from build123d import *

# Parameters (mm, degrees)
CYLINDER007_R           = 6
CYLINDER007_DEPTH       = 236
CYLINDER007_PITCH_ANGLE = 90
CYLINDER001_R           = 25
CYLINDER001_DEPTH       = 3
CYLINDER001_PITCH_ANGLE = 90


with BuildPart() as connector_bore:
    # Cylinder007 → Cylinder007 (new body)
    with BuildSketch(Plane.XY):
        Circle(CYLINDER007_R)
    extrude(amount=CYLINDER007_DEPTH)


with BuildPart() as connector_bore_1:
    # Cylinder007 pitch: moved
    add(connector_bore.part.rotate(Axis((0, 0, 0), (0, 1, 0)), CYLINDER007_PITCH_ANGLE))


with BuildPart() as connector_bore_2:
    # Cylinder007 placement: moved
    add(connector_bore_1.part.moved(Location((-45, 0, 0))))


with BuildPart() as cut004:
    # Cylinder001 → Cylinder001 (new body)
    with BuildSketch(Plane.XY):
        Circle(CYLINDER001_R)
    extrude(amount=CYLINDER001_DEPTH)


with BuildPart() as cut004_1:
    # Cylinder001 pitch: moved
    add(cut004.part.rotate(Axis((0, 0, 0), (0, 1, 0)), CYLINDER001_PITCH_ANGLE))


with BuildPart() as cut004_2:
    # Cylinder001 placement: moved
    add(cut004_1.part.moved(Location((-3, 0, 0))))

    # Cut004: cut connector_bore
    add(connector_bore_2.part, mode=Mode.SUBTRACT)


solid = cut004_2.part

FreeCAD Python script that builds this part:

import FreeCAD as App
import Part
import Sketcher
Q = App.Units.Quantity

doc = App.newDocument("Part")
params = doc.addObject("Spreadsheet::Sheet", "Params")
for row, (alias, value) in enumerate([
    ("sketch1_diameter", "12 mm"),
    ("pad1_length", "236 mm"),
    ("sketch2_diameter", "50 mm"),
    ("pad2_length", "3 mm"),
], start=1):
    params.set(f"A{row}", alias)
    params.set(f"B{row}", "=" + value)
    params.setAlias(f"B{row}", alias)

body = doc.addObject("PartDesign::Body", "Body")

# Sketch on XY plane
sketch1 = doc.addObject("Sketcher::SketchObject", "Sketch")
body.addObject(sketch1)
sketch1.AttachmentSupport = (doc.XY_Plane, [""])
sketch1.MapMode = "FlatFace"
sketch1.addGeometry(Part.Circle(App.Vector(0, 0, 0), App.Vector(0, 0, 1), 6), False)
sketch1.addConstraint([
    Sketcher.Constraint("Coincident", 0, 3, -1, 1),
    Sketcher.Constraint("Diameter", 0, Q("12 mm")),
])
sketch1.setExpression("Constraints[1]", "Params.sketch1_diameter")
pad1 = doc.addObject("PartDesign::Pad", "Pad")
body.addObject(pad1)
pad1.Profile = sketch1
pad1.setExpression("Length", "Params.pad1_length")
body2 = doc.addObject("PartDesign::Body", "Body001")
doc.recompute()

body.Placement = App.Placement(App.Vector(0, 0, 0), App.Rotation(App.Vector(0, 1, 0), 90))
boolean = doc.addObject("PartDesign::Boolean", "Boolean")
body2.addObject(boolean)
boolean.Type = "Fuse"
boolean.addObjects([body])
body3 = doc.addObject("PartDesign::Body", "Body002")
doc.recompute()

body2.Placement = App.Placement(App.Vector(-45, 0, 0), App.Rotation(App.Vector(0, 0, 1), 0))
boolean2 = doc.addObject("PartDesign::Boolean", "Boolean001")
body3.addObject(boolean2)
boolean2.Type = "Fuse"
boolean2.addObjects([body2])
body4 = doc.addObject("PartDesign::Body", "Body003")

# Sketch on XY plane
sketch2 = doc.addObject("Sketcher::SketchObject", "Sketch001")
body4.addObject(sketch2)
sketch2.AttachmentSupport = (doc.getObject("XY_Plane003"), [""])
sketch2.MapMode = "FlatFace"
sketch2.addGeometry(Part.Circle(App.Vector(0, 0, 0), App.Vector(0, 0, 1), 25), False)
sketch2.addConstraint([
    Sketcher.Constraint("Coincident", 0, 3, -1, 1),
    Sketcher.Constraint("Diameter", 0, Q("50 mm")),
])
sketch2.setExpression("Constraints[1]", "Params.sketch2_diameter")
pad2 = doc.addObject("PartDesign::Pad", "Pad001")
body4.addObject(pad2)
pad2.Profile = sketch2
pad2.setExpression("Length", "Params.pad2_length")
body5 = doc.addObject("PartDesign::Body", "Body004")
doc.recompute()

body4.Placement = App.Placement(App.Vector(0, 0, 0), App.Rotation(App.Vector(0, 1, 0), 90))
boolean3 = doc.addObject("PartDesign::Boolean", "Boolean002")
body5.addObject(boolean3)
boolean3.Type = "Fuse"
boolean3.addObjects([body4])
body6 = doc.addObject("PartDesign::Body", "Body005")
doc.recompute()

body5.Placement = App.Placement(App.Vector(-3, 0, 0), App.Rotation(App.Vector(0, 0, 1), 0))
boolean4 = doc.addObject("PartDesign::Boolean", "Boolean003")
body6.addObject(boolean4)
boolean4.Type = "Fuse"
boolean4.addObjects([body5])
doc.recompute()

boolean5 = doc.addObject("PartDesign::Boolean", "Boolean004")
body6.addObject(boolean5)
boolean5.Type = "Cut"
boolean5.addObjects([body3])

doc.recompute()
